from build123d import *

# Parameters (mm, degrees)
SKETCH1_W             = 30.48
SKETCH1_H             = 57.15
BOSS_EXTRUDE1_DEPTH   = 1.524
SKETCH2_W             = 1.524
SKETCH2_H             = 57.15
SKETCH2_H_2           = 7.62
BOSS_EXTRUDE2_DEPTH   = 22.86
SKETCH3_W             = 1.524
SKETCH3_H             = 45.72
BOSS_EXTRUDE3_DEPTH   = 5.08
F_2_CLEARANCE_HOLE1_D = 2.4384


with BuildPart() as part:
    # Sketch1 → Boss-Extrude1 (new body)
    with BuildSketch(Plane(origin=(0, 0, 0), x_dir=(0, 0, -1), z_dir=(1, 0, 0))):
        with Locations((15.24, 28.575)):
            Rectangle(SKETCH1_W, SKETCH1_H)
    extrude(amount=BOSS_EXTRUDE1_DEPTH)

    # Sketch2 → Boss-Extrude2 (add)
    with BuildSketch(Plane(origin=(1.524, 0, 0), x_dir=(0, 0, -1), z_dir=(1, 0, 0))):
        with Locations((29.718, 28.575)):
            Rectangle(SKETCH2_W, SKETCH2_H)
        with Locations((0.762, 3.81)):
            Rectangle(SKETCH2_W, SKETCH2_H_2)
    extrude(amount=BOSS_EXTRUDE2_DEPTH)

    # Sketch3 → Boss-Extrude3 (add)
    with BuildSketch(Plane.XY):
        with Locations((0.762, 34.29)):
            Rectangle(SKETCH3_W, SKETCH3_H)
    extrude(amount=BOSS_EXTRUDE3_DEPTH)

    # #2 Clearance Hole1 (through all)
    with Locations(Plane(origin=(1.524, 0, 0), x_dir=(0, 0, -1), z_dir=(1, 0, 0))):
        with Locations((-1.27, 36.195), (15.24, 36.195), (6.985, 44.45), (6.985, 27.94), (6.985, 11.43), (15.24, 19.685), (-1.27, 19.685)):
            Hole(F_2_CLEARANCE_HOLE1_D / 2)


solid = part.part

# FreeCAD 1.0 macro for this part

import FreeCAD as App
import Part
import Sketcher
Q = App.Units.Quantity

doc = App.newDocument("Part")
body = doc.addObject("PartDesign::Body", "Body")

# Sketch on YZ plane
sketch1 = body.newObject("Sketcher::SketchObject", "Sketch")
sketch1.AttachmentSupport = (doc.getObject("YZ_Plane"), [""])
sketch1.MapMode = "FlatFace"
sketch1.addGeometry([
    Part.LineSegment(App.Vector(57.15, 0, 0), App.Vector(0, 0, 0)),
    Part.LineSegment(App.Vector(0, 0, 0), App.Vector(0, -30.48, 0)),
    Part.LineSegment(App.Vector(0, -30.48, 0), App.Vector(57.15, -30.48, 0)),
    Part.LineSegment(App.Vector(57.15, -30.48, 0), App.Vector(57.15, 0, 0)),
], False)
sketch1.addConstraint([
    Sketcher.Constraint("Coincident", 0, 2, 1, 1),
    Sketcher.Constraint("Coincident", 1, 2, 2, 1),
    Sketcher.Constraint("Coincident", 2, 2, 3, 1),
    Sketcher.Constraint("Coincident", 3, 2, 0, 1),
    Sketcher.Constraint("Horizontal", 0),
    Sketcher.Constraint("Vertical", 1),
    Sketcher.Constraint("Horizontal", 2),
    Sketcher.Constraint("Vertical", 3),
    Sketcher.Constraint("Coincident", 0, 2, -1, 1),
    Sketcher.Constraint("DistanceY", 1, 2, 1, 1, Q("1.2 in")),
    Sketcher.Constraint("DistanceX", 0, 2, 0, 1, Q("2.25 in")),
])
pad1 = body.newObject("PartDesign::Pad", "Pad")
pad1.Profile = sketch1
pad1.Length = Q("0.06 in")

# Sketch on YZ plane
sketch2 = body.newObject("Sketcher::SketchObject", "Sketch001")
sketch2.AttachmentSupport = (doc.getObject("YZ_Plane"), [""])
sketch2.MapMode = "FlatFace"
sketch2.AttachmentOffset = App.Placement(App.Vector(0, 0, 0.06 * 25.4), App.Rotation())
sketch2.addGeometry([
    Part.LineSegment(App.Vector(57.15, -28.956, 0), App.Vector(0, -28.956, 0)),  # 0
    Part.LineSegment(App.Vector(0, -28.956, 0), App.Vector(0, -30.48, 0)),  # 1
    Part.LineSegment(App.Vector(0, -30.48, 0), App.Vector(57.15, -30.48, 0)),  # 2
    Part.LineSegment(App.Vector(57.15, -30.48, 0), App.Vector(57.15, -28.956, 0)),  # 3
    Part.LineSegment(App.Vector(7.62, 0, 0), App.Vector(0, 0, 0)),  # 4
    Part.LineSegment(App.Vector(0, 0, 0), App.Vector(0, -1.524, 0)),  # 5
    Part.LineSegment(App.Vector(0, -1.524, 0), App.Vector(7.62, -1.524, 0)),  # 6
    Part.LineSegment(App.Vector(7.62, -1.524, 0), App.Vector(7.62, 0, 0)),  # 7
], False)
sketch2.addConstraint([
    Sketcher.Constraint("Coincident", 0, 2, 1, 1),
    Sketcher.Constraint("Coincident", 1, 2, 2, 1),
    Sketcher.Constraint("Coincident", 2, 2, 3, 1),
    Sketcher.Constraint("Coincident", 3, 2, 0, 1),
    Sketcher.Constraint("Coincident", 4, 2, 5, 1),
    Sketcher.Constraint("Coincident", 5, 2, 6, 1),
    Sketcher.Constraint("Coincident", 6, 2, 7, 1),
    Sketcher.Constraint("Coincident", 7, 2, 4, 1),
    Sketcher.Constraint("Horizontal", 0),
    Sketcher.Constraint("Vertical", 1),
    Sketcher.Constraint("Horizontal", 2),
    Sketcher.Constraint("Vertical", 3),
    Sketcher.Constraint("Horizontal", 4),
    Sketcher.Constraint("Vertical", 5),
    Sketcher.Constraint("Horizontal", 6),
    Sketcher.Constraint("Vertical", 7),
    Sketcher.Constraint("Coincident", 4, 2, -1, 1),
    Sketcher.Constraint("PointOnObject", 0, 2, -2),
    Sketcher.Constraint("Equal", 3, 5),
    Sketcher.Constraint("DistanceX", 4, 2, 4, 1, Q("0.3 in")),
    Sketcher.Constraint("DistanceX", 0, 2, 0, 1, Q("2.25 in")),
    Sketcher.Constraint("DistanceY", 1, 2, 1, 1, Q("0.06 in")),
    Sketcher.Constraint("DistanceY", 1, 2, -1, 1, Q("1.2 in")),
])
pad2 = body.newObject("PartDesign::Pad", "Pad001")
pad2.Profile = sketch2
pad2.Length = Q("0.9 in")

# Sketch on XY plane
sketch3 = body.newObject("Sketcher::SketchObject", "Sketch002")
sketch3.AttachmentSupport = (doc.getObject("XY_Plane"), [""])
sketch3.MapMode = "FlatFace"
sketch3.addGeometry([
    Part.LineSegment(App.Vector(0, 57.15, 0), App.Vector(0, 11.43, 0)),
    Part.LineSegment(App.Vector(0, 11.43, 0), App.Vector(1.524, 11.43, 0)),
    Part.LineSegment(App.Vector(1.524, 11.43, 0), App.Vector(1.524, 57.15, 0)),
    Part.LineSegment(App.Vector(1.524, 57.15, 0), App.Vector(0, 57.15, 0)),
], False)
sketch3.addConstraint([
    Sketcher.Constraint("Coincident", 0, 2, 1, 1),
    Sketcher.Constraint("Coincident", 1, 2, 2, 1),
    Sketcher.Constraint("Coincident", 2, 2, 3, 1),
    Sketcher.Constraint("Coincident", 3, 2, 0, 1),
    Sketcher.Constraint("Vertical", 0),
    Sketcher.Constraint("Horizontal", 1),
    Sketcher.Constraint("Vertical", 2),
    Sketcher.Constraint("Horizontal", 3),
    Sketcher.Constraint("PointOnObject", 0, 2, -2),
    Sketcher.Constraint("DistanceY", 0, 2, 0, 1, Q("1.8 in")),
    Sketcher.Constraint("DistanceX", 1, 1, 1, 2, Q("0.06 in")),
    Sketcher.Constraint("DistanceY", -1, 1, 0, 2, Q("0.45 in")),
])
pad3 = body.newObject("PartDesign::Pad", "Pad002")
pad3.Profile = sketch3
pad3.Length = Q("0.2 in")

# Sketch on YZ plane
sketch4 = body.newObject("Sketcher::SketchObject", "Sketch003")
sketch4.AttachmentSupport = (doc.getObject("YZ_Plane"), [""])
sketch4.MapMode = "FlatFace"
sketch4.AttachmentOffset = App.Placement(App.Vector(0, 0, 0.06 * 25.4), App.Rotation())
sketch4.addGeometry([
    Part.Circle(App.Vector(36.195, 1.27, 0), App.Vector(0, 0, 1), 1.2192),  # 0
    Part.Circle(App.Vector(36.195, -15.24, 0), App.Vector(0, 0, 1), 1.2192),  # 1
    Part.Circle(App.Vector(44.45, -6.985, 0), App.Vector(0, 0, 1), 1.2192),  # 2
    Part.Circle(App.Vector(27.94, -6.985, 0), App.Vector(0, 0, 1), 1.2192),  # 3
    Part.Circle(App.Vector(11.43, -6.985, 0), App.Vector(0, 0, 1), 1.2192),  # 4
    Part.Circle(App.Vector(19.685, -15.24, 0), App.Vector(0, 0, 1), 1.2192),  # 5
    Part.Circle(App.Vector(19.685, 1.27, 0), App.Vector(0, 0, 1), 1.2192),  # 6
], False)
sketch4.addConstraint([
    Sketcher.Constraint("Equal", 0, 1),
    Sketcher.Constraint("Equal", 1, 2),
    Sketcher.Constraint("Equal", 2, 3),
    Sketcher.Constraint("Equal", 3, 4),
    Sketcher.Constraint("Equal", 4, 5),
    Sketcher.Constraint("Equal", 5, 6),
    Sketcher.Constraint("Horizontal", 2, 3, 3, 3),
    Sketcher.Constraint("Horizontal", 3, 3, 4, 3),
    Sketcher.Constraint("Horizontal", 1, 3, 5, 3),
    Sketcher.Constraint("Horizontal", 0, 3, 6, 3),
    Sketcher.Constraint("Vertical", 0, 3, 1, 3),
    Sketcher.Constraint("Vertical", 5, 3, 6, 3),
    Sketcher.Constraint("Diameter", 0, Q("0.096 in")),
    Sketcher.Constraint("DistanceY", 1, 3, -1, 1, Q("0.6 in")),
    Sketcher.Constraint("DistanceX", -1, 1, 3, 3, Q("1.1 in")),
    Sketcher.Constraint("DistanceX", 4, 3, 2, 3, Q("1.3 in")),
    Sketcher.Constraint("DistanceY", -1, 1, 0, 3, Q("0.05 in")),
    Sketcher.Constraint("DistanceX", -1, 1, 2, 3, Q("1.75 in")),
    Sketcher.Constraint("DistanceX", 5, 3, 1, 3, Q("0.65 in")),
    Sketcher.Constraint("DistanceX", -1, 1, 0, 3, Q("1.425 in")),
    Sketcher.Constraint("DistanceY", 2, 3, -1, 1, Q("0.275 in")),
])
doc.recompute()
hole = body.newObject("PartDesign::Hole", "Hole")
hole.Profile = sketch4
hole.ThreadType = "None"
hole.Diameter = Q("0.096 in")
hole.DepthType = "ThroughAll"

doc.recompute()
